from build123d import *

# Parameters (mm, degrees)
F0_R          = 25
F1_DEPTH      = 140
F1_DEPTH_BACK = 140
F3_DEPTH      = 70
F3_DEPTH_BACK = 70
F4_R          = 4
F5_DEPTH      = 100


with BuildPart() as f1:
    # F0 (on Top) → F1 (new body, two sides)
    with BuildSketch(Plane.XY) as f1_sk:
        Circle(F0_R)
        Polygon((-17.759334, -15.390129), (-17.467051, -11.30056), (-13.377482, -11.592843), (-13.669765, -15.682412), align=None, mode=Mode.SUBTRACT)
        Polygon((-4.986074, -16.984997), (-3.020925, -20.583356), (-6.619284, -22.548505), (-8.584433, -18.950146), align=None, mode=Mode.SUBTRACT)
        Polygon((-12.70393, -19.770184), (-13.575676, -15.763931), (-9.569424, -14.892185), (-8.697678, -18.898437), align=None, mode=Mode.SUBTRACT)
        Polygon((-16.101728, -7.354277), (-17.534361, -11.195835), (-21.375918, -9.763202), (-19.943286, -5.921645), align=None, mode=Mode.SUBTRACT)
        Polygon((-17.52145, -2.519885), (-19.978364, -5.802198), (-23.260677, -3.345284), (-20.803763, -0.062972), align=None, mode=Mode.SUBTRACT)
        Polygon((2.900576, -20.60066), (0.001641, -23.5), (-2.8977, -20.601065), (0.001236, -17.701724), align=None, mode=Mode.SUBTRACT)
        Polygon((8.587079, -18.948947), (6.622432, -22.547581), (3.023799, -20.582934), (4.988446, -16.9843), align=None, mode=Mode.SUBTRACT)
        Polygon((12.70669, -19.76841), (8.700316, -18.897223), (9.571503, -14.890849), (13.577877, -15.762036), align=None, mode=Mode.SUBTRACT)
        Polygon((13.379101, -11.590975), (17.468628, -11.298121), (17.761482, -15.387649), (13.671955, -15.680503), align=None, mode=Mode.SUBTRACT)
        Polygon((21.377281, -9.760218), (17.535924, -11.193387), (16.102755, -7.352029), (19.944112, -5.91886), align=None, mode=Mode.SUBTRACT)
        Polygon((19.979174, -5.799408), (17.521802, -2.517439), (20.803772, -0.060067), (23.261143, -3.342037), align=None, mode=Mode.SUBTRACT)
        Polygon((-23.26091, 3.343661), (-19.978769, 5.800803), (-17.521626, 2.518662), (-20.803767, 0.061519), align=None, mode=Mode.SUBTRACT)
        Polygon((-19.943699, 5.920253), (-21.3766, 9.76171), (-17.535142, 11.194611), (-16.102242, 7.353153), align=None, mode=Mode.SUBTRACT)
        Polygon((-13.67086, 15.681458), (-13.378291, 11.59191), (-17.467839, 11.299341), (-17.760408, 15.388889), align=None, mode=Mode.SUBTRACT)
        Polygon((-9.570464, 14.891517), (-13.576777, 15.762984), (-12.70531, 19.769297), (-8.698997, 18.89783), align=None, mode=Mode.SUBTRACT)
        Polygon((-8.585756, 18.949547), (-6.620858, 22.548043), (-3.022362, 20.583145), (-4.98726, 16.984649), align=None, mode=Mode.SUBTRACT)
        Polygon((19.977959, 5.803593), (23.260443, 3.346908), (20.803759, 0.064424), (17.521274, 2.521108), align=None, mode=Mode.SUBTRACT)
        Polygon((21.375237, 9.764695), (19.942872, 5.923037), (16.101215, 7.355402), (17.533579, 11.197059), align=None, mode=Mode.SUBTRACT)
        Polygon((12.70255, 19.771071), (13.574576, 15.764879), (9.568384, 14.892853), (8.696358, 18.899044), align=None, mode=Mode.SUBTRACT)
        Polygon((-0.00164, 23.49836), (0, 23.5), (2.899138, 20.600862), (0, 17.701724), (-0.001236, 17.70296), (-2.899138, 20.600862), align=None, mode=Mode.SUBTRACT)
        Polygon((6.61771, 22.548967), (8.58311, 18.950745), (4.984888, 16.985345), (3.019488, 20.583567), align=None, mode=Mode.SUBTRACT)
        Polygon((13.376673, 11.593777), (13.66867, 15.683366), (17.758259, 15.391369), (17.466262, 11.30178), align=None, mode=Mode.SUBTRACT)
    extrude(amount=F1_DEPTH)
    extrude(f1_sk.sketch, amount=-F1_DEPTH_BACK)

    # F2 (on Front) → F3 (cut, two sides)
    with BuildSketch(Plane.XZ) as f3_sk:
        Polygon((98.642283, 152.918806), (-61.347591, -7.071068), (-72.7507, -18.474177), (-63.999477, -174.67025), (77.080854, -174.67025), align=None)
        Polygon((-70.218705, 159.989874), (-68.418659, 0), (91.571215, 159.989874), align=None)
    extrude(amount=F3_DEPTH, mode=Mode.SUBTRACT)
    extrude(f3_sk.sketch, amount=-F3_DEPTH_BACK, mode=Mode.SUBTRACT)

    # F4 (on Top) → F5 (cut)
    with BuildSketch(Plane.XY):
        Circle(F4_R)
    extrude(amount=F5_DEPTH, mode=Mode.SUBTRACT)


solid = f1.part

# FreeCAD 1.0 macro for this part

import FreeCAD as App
import Part
import Sketcher
Q = App.Units.Quantity

doc = App.newDocument("Part")
body = doc.addObject("PartDesign::Body", "Body")

# Sketch on XY plane
sketch1 = body.newObject("Sketcher::SketchObject", "Sketch")
sketch1.AttachmentSupport = (doc.getObject("XY_Plane"), [""])
sketch1.MapMode = "FlatFace"
sketch1.addGeometry(Part.Circle(App.Vector(0, 0, 0), App.Vector(0, 0, 1), 25), False)
sketch1.addGeometry(Part.LineSegment(App.Vector(-13.7, -15.7, 0), App.Vector(-17.8, -15.4, 0)), False)
sketch1.addGeometry(Part.LineSegment(App.Vector(-17.8, -15.4, 0), App.Vector(-17.5, -11.3, 0)), False)
sketch1.addGeometry(Part.LineSegment(App.Vector(-17.5, -11.3, 0), App.Vector(-13.4, -11.6, 0)), False)
sketch1.addGeometry(Part.LineSegment(App.Vector(-13.4, -11.6, 0), App.Vector(-13.7, -15.7, 0)), False)
sketch1.addGeometry(Part.LineSegment(App.Vector(-8.6, -19, 0), App.Vector(-5, -17, 0)), False)
sketch1.addGeometry(Part.LineSegment(App.Vector(-5, -17, 0), App.Vector(-3, -20.6, 0)), False)
sketch1.addGeometry(Part.LineSegment(App.Vector(-3, -20.6, 0), App.Vector(-6.6, -22.5, 0)), False)
sketch1.addGeometry(Part.LineSegment(App.Vector(-6.6, -22.5, 0), App.Vector(-8.6, -19, 0)), False)
sketch1.addGeometry(Part.LineSegment(App.Vector(-8.7, -18.9, 0), App.Vector(-12.7, -19.8, 0)), False)
sketch1.addGeometry(Part.LineSegment(App.Vector(-12.7, -19.8, 0), App.Vector(-13.6, -15.8, 0)), False)
sketch1.addGeometry(Part.LineSegment(App.Vector(-13.6, -15.8, 0), App.Vector(-9.6, -14.9, 0)), False)
sketch1.addGeometry(Part.LineSegment(App.Vector(-9.6, -14.9, 0), App.Vector(-8.7, -18.9, 0)), False)
sketch1.addGeometry(Part.LineSegment(App.Vector(-19.9, -5.9, 0), App.Vector(-16.1, -7.4, 0)), False)
sketch1.addGeometry(Part.LineSegment(App.Vector(-16.1, -7.4, 0), App.Vector(-17.5, -11.2, 0)), False)
sketch1.addGeometry(Part.LineSegment(App.Vector(-17.5, -11.2, 0), App.Vector(-21.4, -9.8, 0)), False)
sketch1.addGeometry(Part.LineSegment(App.Vector(-21.4, -9.8, 0), App.Vector(-19.9, -5.9, 0)), False)
sketch1.addGeometry(Part.LineSegment(App.Vector(-20.8, -0.1, 0), App.Vector(-17.5, -2.5, 0)), False)
sketch1.addGeometry(Part.LineSegment(App.Vector(-17.5, -2.5, 0), App.Vector(-20, -5.8, 0)), False)
sketch1.addGeometry(Part.LineSegment(App.Vector(-20, -5.8, 0), App.Vector(-23.3, -3.3, 0)), False)
sketch1.addGeometry(Part.LineSegment(App.Vector(-23.3, -3.3, 0), App.Vector(-20.8, -0.1, 0)), False)
sketch1.addGeometry(Part.LineSegment(App.Vector(0, -17.7, 0), App.Vector(2.9, -20.6, 0)), False)
sketch1.addGeometry(Part.LineSegment(App.Vector(2.9, -20.6, 0), App.Vector(0, -23.5, 0)), False)
sketch1.addGeometry(Part.LineSegment(App.Vector(0, -23.5, 0), App.Vector(-2.9, -20.6, 0)), False)
sketch1.addGeometry(Part.LineSegment(App.Vector(-2.9, -20.6, 0), App.Vector(0, -17.7, 0)), False)
sketch1.addGeometry(Part.LineSegment(App.Vector(5, -17, 0), App.Vector(8.6, -18.9, 0)), False)
sketch1.addGeometry(Part.LineSegment(App.Vector(8.6, -18.9, 0), App.Vector(6.6, -22.5, 0)), False)
sketch1.addGeometry(Part.LineSegment(App.Vector(6.6, -22.5, 0), App.Vector(3, -20.6, 0)), False)
sketch1.addGeometry(Part.LineSegment(App.Vector(3, -20.6, 0), App.Vector(5, -17, 0)), False)
sketch1.addGeometry(Part.LineSegment(App.Vector(13.6, -15.8, 0), App.Vector(12.7, -19.8, 0)), False)
sketch1.addGeometry(Part.LineSegment(App.Vector(12.7, -19.8, 0), App.Vector(8.7, -18.9, 0)), False)
sketch1.addGeometry(Part.LineSegment(App.Vector(8.7, -18.9, 0), App.Vector(9.6, -14.9, 0)), False)
sketch1.addGeometry(Part.LineSegment(App.Vector(9.6, -14.9, 0), App.Vector(13.6, -15.8, 0)), False)
sketch1.addGeometry(Part.LineSegment(App.Vector(13.7, -15.7, 0), App.Vector(13.4, -11.6, 0)), False)
sketch1.addGeometry(Part.LineSegment(App.Vector(13.4, -11.6, 0), App.Vector(17.5, -11.3, 0)), False)
sketch1.addGeometry(Part.LineSegment(App.Vector(17.5, -11.3, 0), App.Vector(17.8, -15.4, 0)), False)
sketch1.addGeometry(Part.LineSegment(App.Vector(17.8, -15.4, 0), App.Vector(13.7, -15.7, 0)), False)
sketch1.addGeometry(Part.LineSegment(App.Vector(19.9, -5.9, 0), App.Vector(21.4, -9.8, 0)), False)
sketch1.addGeometry(Part.LineSegment(App.Vector(21.4, -9.8, 0), App.Vector(17.5, -11.2, 0)), False)
sketch1.addGeometry(Part.LineSegment(App.Vector(17.5, -11.2, 0), App.Vector(16.1, -7.4, 0)), False)
sketch1.addGeometry(Part.LineSegment(App.Vector(16.1, -7.4, 0), App.Vector(19.9, -5.9, 0)), False)
sketch1.addGeometry(Part.LineSegment(App.Vector(23.3, -3.3, 0), App.Vector(20, -5.8, 0)), False)
sketch1.addGeometry(Part.LineSegment(App.Vector(20, -5.8, 0), App.Vector(17.5, -2.5, 0)), False)
sketch1.addGeometry(Part.LineSegment(App.Vector(17.5, -2.5, 0), App.Vector(20.8, -0.1, 0)), False)
sketch1.addGeometry(Part.LineSegment(App.Vector(20.8, -0.1, 0), App.Vector(23.3, -3.3, 0)), False)
sketch1.addGeometry(Part.LineSegment(App.Vector(-20.8, 0.1, 0), App.Vector(-23.3, 3.3, 0)), False)
sketch1.addGeometry(Part.LineSegment(App.Vector(-23.3, 3.3, 0), App.Vector(-20, 5.8, 0)), False)
sketch1.addGeometry(Part.LineSegment(App.Vector(-20, 5.8, 0), App.Vector(-17.5, 2.5, 0)), False)
sketch1.addGeometry(Part.LineSegment(App.Vector(-17.5, 2.5, 0), App.Vector(-20.8, 0.1, 0)), False)
sketch1.addGeometry(Part.LineSegment(App.Vector(-16.1, 7.4, 0), App.Vector(-19.9, 5.9, 0)), False)
sketch1.addGeometry(Part.LineSegment(App.Vector(-19.9, 5.9, 0), App.Vector(-21.4, 9.8, 0)), False)
sketch1.addGeometry(Part.LineSegment(App.Vector(-21.4, 9.8, 0), App.Vector(-17.5, 11.2, 0)), False)
sketch1.addGeometry(Part.LineSegment(App.Vector(-17.5, 11.2, 0), App.Vector(-16.1, 7.4, 0)), False)
sketch1.addGeometry(Part.LineSegment(App.Vector(-17.8, 15.4, 0), App.Vector(-13.7, 15.7, 0)), False)
sketch1.addGeometry(Part.LineSegment(App.Vector(-13.7, 15.7, 0), App.Vector(-13.4, 11.6, 0)), False)
sketch1.addGeometry(Part.LineSegment(App.Vector(-13.4, 11.6, 0), App.Vector(-17.5, 11.3, 0)), False)
sketch1.addGeometry(Part.LineSegment(App.Vector(-17.5, 11.3, 0), App.Vector(-17.8, 15.4, 0)), False)
sketch1.addGeometry(Part.LineSegment(App.Vector(-8.7, 18.9, 0), App.Vector(-9.6, 14.9, 0)), False)
sketch1.addGeometry(Part.LineSegment(App.Vector(-9.6, 14.9, 0), App.Vector(-13.6, 15.8, 0)), False)
sketch1.addGeometry(Part.LineSegment(App.Vector(-13.6, 15.8, 0), App.Vector(-12.7, 19.8, 0)), False)
sketch1.addGeometry(Part.LineSegment(App.Vector(-12.7, 19.8, 0), App.Vector(-8.7, 18.9, 0)), False)
sketch1.addGeometry(Part.LineSegment(App.Vector(-5, 17, 0), App.Vector(-8.6, 18.9, 0)), False)
sketch1.addGeometry(Part.LineSegment(App.Vector(-8.6, 18.9, 0), App.Vector(-6.6, 22.5, 0)), False)
sketch1.addGeometry(Part.LineSegment(App.Vector(-6.6, 22.5, 0), App.Vector(-3, 20.6, 0)), False)
sketch1.addGeometry(Part.LineSegment(App.Vector(-3, 20.6, 0), App.Vector(-5, 17, 0)), False)
sketch1.addGeometry(Part.LineSegment(App.Vector(-2.9, 20.6, 0), App.Vector(0, 23.5, 0)), False)
sketch1.addGeometry(Part.LineSegment(App.Vector(0, 23.5, 0), App.Vector(2.9, 20.6, 0)), False)
sketch1.addGeometry(Part.LineSegment(App.Vector(2.9, 20.6, 0), App.Vector(0, 17.7, 0)), False)
sketch1.addGeometry(Part.LineSegment(App.Vector(0, 17.7, 0), App.Vector(-2.9, 20.6, 0)), False)
sketch1.addGeometry(Part.LineSegment(App.Vector(17.5, 2.5, 0), App.Vector(20, 5.8, 0)), False)
sketch1.addGeometry(Part.LineSegment(App.Vector(20, 5.8, 0), App.Vector(23.3, 3.3, 0)), False)
sketch1.addGeometry(Part.LineSegment(App.Vector(23.3, 3.3, 0), App.Vector(20.8, 0.1, 0)), False)
sketch1.addGeometry(Part.LineSegment(App.Vector(20.8, 0.1, 0), App.Vector(17.5, 2.5, 0)), False)
sketch1.addGeometry(Part.LineSegment(App.Vector(17.5, 11.2, 0), App.Vector(21.4, 9.8, 0)), False)
sketch1.addGeometry(Part.LineSegment(App.Vector(21.4, 9.8, 0), App.Vector(19.9, 5.9, 0)), False)
sketch1.addGeometry(Part.LineSegment(App.Vector(19.9, 5.9, 0), App.Vector(16.1, 7.4, 0)), False)
sketch1.addGeometry(Part.LineSegment(App.Vector(16.1, 7.4, 0), App.Vector(17.5, 11.2, 0)), False)
sketch1.addGeometry(Part.LineSegment(App.Vector(8.7, 18.9, 0), App.Vector(12.7, 19.8, 0)), False)
sketch1.addGeometry(Part.LineSegment(App.Vector(12.7, 19.8, 0), App.Vector(13.6, 15.8, 0)), False)
sketch1.addGeometry(Part.LineSegment(App.Vector(13.6, 15.8, 0), App.Vector(9.6, 14.9, 0)), False)
sketch1.addGeometry(Part.LineSegment(App.Vector(9.6, 14.9, 0), App.Vector(8.7, 18.9, 0)), False)
sketch1.addGeometry(Part.LineSegment(App.Vector(3, 20.6, 0), App.Vector(6.6, 22.5, 0)), False)
sketch1.addGeometry(Part.LineSegment(App.Vector(6.6, 22.5, 0), App.Vector(8.6, 19, 0)), False)
sketch1.addGeometry(Part.LineSegment(App.Vector(8.6, 19, 0), App.Vector(5, 17, 0)), False)
sketch1.addGeometry(Part.LineSegment(App.Vector(5, 17, 0), App.Vector(3, 20.6, 0)), False)
sketch1.addGeometry(Part.LineSegment(App.Vector(17.5, 11.3, 0), App.Vector(13.4, 11.6, 0)), False)
sketch1.addGeometry(Part.LineSegment(App.Vector(13.4, 11.6, 0), App.Vector(13.7, 15.7, 0)), False)
sketch1.addGeometry(Part.LineSegment(App.Vector(13.7, 15.7, 0), App.Vector(17.8, 15.4, 0)), False)
sketch1.addGeometry(Part.LineSegment(App.Vector(17.8, 15.4, 0), App.Vector(17.5, 11.3, 0)), False)
sketch1.addConstraint(Sketcher.Constraint("Coincident", 1, 2, 2, 1))
sketch1.addConstraint(Sketcher.Constraint("Coincident", 2, 2, 3, 1))
sketch1.addConstraint(Sketcher.Constraint("Coincident", 3, 2, 4, 1))
sketch1.addConstraint(Sketcher.Constraint("Coincident", 4, 2, 1, 1))
sketch1.addConstraint(Sketcher.Constraint("Coincident", 5, 2, 6, 1))
sketch1.addConstraint(Sketcher.Constraint("Coincident", 6, 2, 7, 1))
sketch1.addConstraint(Sketcher.Constraint("Coincident", 7, 2, 8, 1))
sketch1.addConstraint(Sketcher.Constraint("Coincident", 8, 2, 5, 1))
sketch1.addConstraint(Sketcher.Constraint("Coincident", 9, 2, 10, 1))
sketch1.addConstraint(Sketcher.Constraint("Coincident", 10, 2, 11, 1))
sketch1.addConstraint(Sketcher.Constraint("Coincident", 11, 2, 12, 1))
sketch1.addConstraint(Sketcher.Constraint("Coincident", 12, 2, 9, 1))
sketch1.addConstraint(Sketcher.Constraint("Coincident", 13, 2, 14, 1))
sketch1.addConstraint(Sketcher.Constraint("Coincident", 14, 2, 15, 1))
sketch1.addConstraint(Sketcher.Constraint("Coincident", 15, 2, 16, 1))
sketch1.addConstraint(Sketcher.Constraint("Coincident", 16, 2, 13, 1))
sketch1.addConstraint(Sketcher.Constraint("Coincident", 17, 2, 18, 1))
sketch1.addConstraint(Sketcher.Constraint("Coincident", 18, 2, 19, 1))
sketch1.addConstraint(Sketcher.Constraint("Coincident", 19, 2, 20, 1))
sketch1.addConstraint(Sketcher.Constraint("Coincident", 20, 2, 17, 1))
sketch1.addConstraint(Sketcher.Constraint("Coincident", 21, 2, 22, 1))
sketch1.addConstraint(Sketcher.Constraint("Coincident", 22, 2, 23, 1))
sketch1.addConstraint(Sketcher.Constraint("Coincident", 23, 2, 24, 1))
sketch1.addConstraint(Sketcher.Constraint("Coincident", 24, 2, 21, 1))
sketch1.addConstraint(Sketcher.Constraint("Coincident", 25, 2, 26, 1))
sketch1.addConstraint(Sketcher.Constraint("Coincident", 26, 2, 27, 1))
sketch1.addConstraint(Sketcher.Constraint("Coincident", 27, 2, 28, 1))
sketch1.addConstraint(Sketcher.Constraint("Coincident", 28, 2, 25, 1))
sketch1.addConstraint(Sketcher.Constraint("Coincident", 29, 2, 30, 1))
sketch1.addConstraint(Sketcher.Constraint("Coincident", 30, 2, 31, 1))
sketch1.addConstraint(Sketcher.Constraint("Coincident", 31, 2, 32, 1))
sketch1.addConstraint(Sketcher.Constraint("Coincident", 32, 2, 29, 1))
sketch1.addConstraint(Sketcher.Constraint("Coincident", 33, 2, 34, 1))
sketch1.addConstraint(Sketcher.Constraint("Coincident", 34, 2, 35, 1))
sketch1.addConstraint(Sketcher.Constraint("Coincident", 35, 2, 36, 1))
sketch1.addConstraint(Sketcher.Constraint("Coincident", 36, 2, 33, 1))
sketch1.addConstraint(Sketcher.Constraint("Coincident", 37, 2, 38, 1))
sketch1.addConstraint(Sketcher.Constraint("Coincident", 38, 2, 39, 1))
sketch1.addConstraint(Sketcher.Constraint("Coincident", 39, 2, 40, 1))
sketch1.addConstraint(Sketcher.Constraint("Coincident", 40, 2, 37, 1))
sketch1.addConstraint(Sketcher.Constraint("Coincident", 41, 2, 42, 1))
sketch1.addConstraint(Sketcher.Constraint("Coincident", 42, 2, 43, 1))
sketch1.addConstraint(Sketcher.Constraint("Coincident", 43, 2, 44, 1))
sketch1.addConstraint(Sketcher.Constraint("Coincident", 44, 2, 41, 1))
sketch1.addConstraint(Sketcher.Constraint("Coincident", 45, 2, 46, 1))
sketch1.addConstraint(Sketcher.Constraint("Coincident", 46, 2, 47, 1))
sketch1.addConstraint(Sketcher.Constraint("Coincident", 47, 2, 48, 1))
sketch1.addConstraint(Sketcher.Constraint("Coincident", 48, 2, 45, 1))
sketch1.addConstraint(Sketcher.Constraint("Coincident", 49, 2, 50, 1))
sketch1.addConstraint(Sketcher.Constraint("Coincident", 50, 2, 51, 1))
sketch1.addConstraint(Sketcher.Constraint("Coincident", 51, 2, 52, 1))
sketch1.addConstraint(Sketcher.Constraint("Coincident", 52, 2, 49, 1))
sketch1.addConstraint(Sketcher.Constraint("Coincident", 53, 2, 54, 1))
sketch1.addConstraint(Sketcher.Constraint("Coincident", 54, 2, 55, 1))
sketch1.addConstraint(Sketcher.Constraint("Coincident", 55, 2, 56, 1))
sketch1.addConstraint(Sketcher.Constraint("Coincident", 56, 2, 53, 1))
sketch1.addConstraint(Sketcher.Constraint("Coincident", 57, 2, 58, 1))
sketch1.addConstraint(Sketcher.Constraint("Coincident", 58, 2, 59, 1))
sketch1.addConstraint(Sketcher.Constraint("Coincident", 59, 2, 60, 1))
sketch1.addConstraint(Sketcher.Constraint("Coincident", 60, 2, 57, 1))
sketch1.addConstraint(Sketcher.Constraint("Coincident", 61, 2, 62, 1))
sketch1.addConstraint(Sketcher.Constraint("Coincident", 62, 2, 63, 1))
sketch1.addConstraint(Sketcher.Constraint("Coincident", 63, 2, 64, 1))
sketch1.addConstraint(Sketcher.Constraint("Coincident", 64, 2, 61, 1))
sketch1.addConstraint(Sketcher.Constraint("Coincident", 65, 2, 66, 1))
sketch1.addConstraint(Sketcher.Constraint("Coincident", 66, 2, 67, 1))
sketch1.addConstraint(Sketcher.Constraint("Coincident", 67, 2, 68, 1))
sketch1.addConstraint(Sketcher.Constraint("Coincident", 68, 2, 65, 1))
sketch1.addConstraint(Sketcher.Constraint("Coincident", 69, 2, 70, 1))
sketch1.addConstraint(Sketcher.Constraint("Coincident", 70, 2, 71, 1))
sketch1.addConstraint(Sketcher.Constraint("Coincident", 71, 2, 72, 1))
sketch1.addConstraint(Sketcher.Constraint("Coincident", 72, 2, 69, 1))
sketch1.addConstraint(Sketcher.Constraint("Coincident", 73, 2, 74, 1))
sketch1.addConstraint(Sketcher.Constraint("Coincident", 74, 2, 75, 1))
sketch1.addConstraint(Sketcher.Constraint("Coincident", 75, 2, 76, 1))
sketch1.addConstraint(Sketcher.Constraint("Coincident", 76, 2, 73, 1))
sketch1.addConstraint(Sketcher.Constraint("Coincident", 77, 2, 78, 1))
sketch1.addConstraint(Sketcher.Constraint("Coincident", 78, 2, 79, 1))
sketch1.addConstraint(Sketcher.Constraint("Coincident", 79, 2, 80, 1))
sketch1.addConstraint(Sketcher.Constraint("Coincident", 80, 2, 77, 1))
sketch1.addConstraint(Sketcher.Constraint("Coincident", 81, 2, 82, 1))
sketch1.addConstraint(Sketcher.Constraint("Coincident", 82, 2, 83, 1))
sketch1.addConstraint(Sketcher.Constraint("Coincident", 83, 2, 84, 1))
sketch1.addConstraint(Sketcher.Constraint("Coincident", 84, 2, 81, 1))
sketch1.addConstraint(Sketcher.Constraint("Coincident", 85, 2, 86, 1))
sketch1.addConstraint(Sketcher.Constraint("Coincident", 86, 2, 87, 1))
sketch1.addConstraint(Sketcher.Constraint("Coincident", 87, 2, 88, 1))
sketch1.addConstraint(Sketcher.Constraint("Coincident", 88, 2, 85, 1))
sketch1.addConstraint(Sketcher.Constraint("Coincident", 0, 3, -1, 1))
sketch1.addConstraint(Sketcher.Constraint("Symmetric", 66, 2, 68, 2, -2))
sketch1.addConstraint(Sketcher.Constraint("PointOnObject", 65, 2, -2))
sketch1.addConstraint(Sketcher.Constraint("PointOnObject", 67, 2, -2))
sketch1.addConstraint(Sketcher.Constraint("Perpendicular", 1, 2))
sketch1.addConstraint(Sketcher.Constraint("Perpendicular", 2, 3))
sketch1.addConstraint(Sketcher.Constraint("Perpendicular", 3, 4))
sketch1.addConstraint(Sketcher.Constraint("Perpendicular", 5, 6))
sketch1.addConstraint(Sketcher.Constraint("Perpendicular", 6, 7))
sketch1.addConstraint(Sketcher.Constraint("Perpendicular", 7, 8))
sketch1.addConstraint(Sketcher.Constraint("Perpendicular", 9, 10))
sketch1.addConstraint(Sketcher.Constraint("Perpendicular", 10, 11))
sketch1.addConstraint(Sketcher.Constraint("Perpendicular", 11, 12))
sketch1.addConstraint(Sketcher.Constraint("Perpendicular", 13, 14))
sketch1.addConstraint(Sketcher.Constraint("Perpendicular", 14, 15))
sketch1.addConstraint(Sketcher.Constraint("Perpendicular", 15, 16))
sketch1.addConstraint(Sketcher.Constraint("Perpendicular", 17, 18))
sketch1.addConstraint(Sketcher.Constraint("Perpendicular", 18, 19))
sketch1.addConstraint(Sketcher.Constraint("Perpendicular", 19, 20))
sketch1.addConstraint(Sketcher.Constraint("Perpendicular", 21, 22))
sketch1.addConstraint(Sketcher.Constraint("Perpendicular", 22, 23))
sketch1.addConstraint(Sketcher.Constraint("Perpendicular", 23, 24))
sketch1.addConstraint(Sketcher.Constraint("Perpendicular", 25, 26))
sketch1.addConstraint(Sketcher.Constraint("Perpendicular", 26, 27))
sketch1.addConstraint(Sketcher.Constraint("Perpendicular", 27, 28))
sketch1.addConstraint(Sketcher.Constraint("Perpendicular", 29, 30))
sketch1.addConstraint(Sketcher.Constraint("Perpendicular", 30, 31))
sketch1.addConstraint(Sketcher.Constraint("Perpendicular", 31, 32))
sketch1.addConstraint(Sketcher.Constraint("Perpendicular", 33, 34))
sketch1.addConstraint(Sketcher.Constraint("Perpendicular", 34, 35))
sketch1.addConstraint(Sketcher.Constraint("Perpendicular", 35, 36))
sketch1.addConstraint(Sketcher.Constraint("Perpendicular", 37, 38))
sketch1.addConstraint(Sketcher.Constraint("Perpendicular", 38, 39))
sketch1.addConstraint(Sketcher.Constraint("Perpendicular", 39, 40))
sketch1.addConstraint(Sketcher.Constraint("Perpendicular", 41, 42))
sketch1.addConstraint(Sketcher.Constraint("Perpendicular", 42, 43))
sketch1.addConstraint(Sketcher.Constraint("Perpendicular", 43, 44))
sketch1.addConstraint(Sketcher.Constraint("Perpendicular", 45, 46))
sketch1.addConstraint(Sketcher.Constraint("Perpendicular", 46, 47))
sketch1.addConstraint(Sketcher.Constraint("Perpendicular", 47, 48))
sketch1.addConstraint(Sketcher.Constraint("Perpendicular", 49, 50))
sketch1.addConstraint(Sketcher.Constraint("Perpendicular", 50, 51))
sketch1.addConstraint(Sketcher.Constraint("Perpendicular", 51, 52))
sketch1.addConstraint(Sketcher.Constraint("Perpendicular", 53, 54))
sketch1.addConstraint(Sketcher.Constraint("Perpendicular", 54, 55))
sketch1.addConstraint(Sketcher.Constraint("Perpendicular", 55, 56))
sketch1.addConstraint(Sketcher.Constraint("Perpendicular", 57, 58))
sketch1.addConstraint(Sketcher.Constraint("Perpendicular", 58, 59))
sketch1.addConstraint(Sketcher.Constraint("Perpendicular", 59, 60))
sketch1.addConstraint(Sketcher.Constraint("Perpendicular", 61, 62))
sketch1.addConstraint(Sketcher.Constraint("Perpendicular", 62, 63))
sketch1.addConstraint(Sketcher.Constraint("Perpendicular", 63, 64))
sketch1.addConstraint(Sketcher.Constraint("Perpendicular", 65, 66))
sketch1.addConstraint(Sketcher.Constraint("Perpendicular", 66, 67))
sketch1.addConstraint(Sketcher.Constraint("Perpendicular", 69, 70))
sketch1.addConstraint(Sketcher.Constraint("Perpendicular", 70, 71))
sketch1.addConstraint(Sketcher.Constraint("Perpendicular", 71, 72))
sketch1.addConstraint(Sketcher.Constraint("Perpendicular", 73, 74))
sketch1.addConstraint(Sketcher.Constraint("Perpendicular", 74, 75))
sketch1.addConstraint(Sketcher.Constraint("Perpendicular", 75, 76))
sketch1.addConstraint(Sketcher.Constraint("Perpendicular", 77, 78))
sketch1.addConstraint(Sketcher.Constraint("Perpendicular", 78, 79))
sketch1.addConstraint(Sketcher.Constraint("Perpendicular", 79, 80))
sketch1.addConstraint(Sketcher.Constraint("Perpendicular", 81, 82))
sketch1.addConstraint(Sketcher.Constraint("Perpendicular", 82, 83))
sketch1.addConstraint(Sketcher.Constraint("Perpendicular", 83, 84))
sketch1.addConstraint(Sketcher.Constraint("Perpendicular", 85, 86))
sketch1.addConstraint(Sketcher.Constraint("Perpendicular", 86, 87))
sketch1.addConstraint(Sketcher.Constraint("Perpendicular", 87, 88))
sketch1.addConstraint(Sketcher.Constraint("Equal", 1, 2))
sketch1.addConstraint(Sketcher.Constraint("Equal", 4, 5))
sketch1.addConstraint(Sketcher.Constraint("Equal", 5, 6))
sketch1.addConstraint(Sketcher.Constraint("Equal", 8, 9))
sketch1.addConstraint(Sketcher.Constraint("Equal", 9, 10))
sketch1.addConstraint(Sketcher.Constraint("Equal", 12, 13))
sketch1.addConstraint(Sketcher.Constraint("Equal", 13, 14))
sketch1.addConstraint(Sketcher.Constraint("Equal", 16, 17))
sketch1.addConstraint(Sketcher.Constraint("Equal", 17, 18))
sketch1.addConstraint(Sketcher.Constraint("Equal", 20, 21))
sketch1.addConstraint(Sketcher.Constraint("Equal", 21, 22))
sketch1.addConstraint(Sketcher.Constraint("Equal", 24, 25))
sketch1.addConstraint(Sketcher.Constraint("Equal", 25, 26))
sketch1.addConstraint(Sketcher.Constraint("Equal", 28, 29))
sketch1.addConstraint(Sketcher.Constraint("Equal", 29, 30))
sketch1.addConstraint(Sketcher.Constraint("Equal", 32, 33))
sketch1.addConstraint(Sketcher.Constraint("Equal", 33, 34))
sketch1.addConstraint(Sketcher.Constraint("Equal", 36, 37))
sketch1.addConstraint(Sketcher.Constraint("Equal", 37, 38))
sketch1.addConstraint(Sketcher.Constraint("Equal", 40, 41))
sketch1.addConstraint(Sketcher.Constraint("Equal", 41, 42))
sketch1.addConstraint(Sketcher.Constraint("Equal", 44, 45))
sketch1.addConstraint(Sketcher.Constraint("Equal", 45, 46))
sketch1.addConstraint(Sketcher.Constraint("Equal", 48, 49))
sketch1.addConstraint(Sketcher.Constraint("Equal", 49, 50))
sketch1.addConstraint(Sketcher.Constraint("Equal", 52, 53))
sketch1.addConstraint(Sketcher.Constraint("Equal", 53, 54))
sketch1.addConstraint(Sketcher.Constraint("Equal", 56, 57))
sketch1.addConstraint(Sketcher.Constraint("Equal", 57, 58))
sketch1.addConstraint(Sketcher.Constraint("Equal", 60, 61))
sketch1.addConstraint(Sketcher.Constraint("Equal", 61, 62))
sketch1.addConstraint(Sketcher.Constraint("Equal", 64, 65))
sketch1.addConstraint(Sketcher.Constraint("Equal", 68, 69))
sketch1.addConstraint(Sketcher.Constraint("Equal", 69, 70))
sketch1.addConstraint(Sketcher.Constraint("Equal", 72, 73))
sketch1.addConstraint(Sketcher.Constraint("Equal", 73, 74))
sketch1.addConstraint(Sketcher.Constraint("Equal", 76, 77))
sketch1.addConstraint(Sketcher.Constraint("Equal", 77, 78))
sketch1.addConstraint(Sketcher.Constraint("Equal", 80, 81))
sketch1.addConstraint(Sketcher.Constraint("Equal", 81, 82))
sketch1.addConstraint(Sketcher.Constraint("Equal", 84, 85))
sketch1.addConstraint(Sketcher.Constraint("Equal", 85, 86))
sketch1.addConstraint(Sketcher.Constraint("Diameter", 0, Q("50 mm")))
sketch1.addConstraint(Sketcher.Constraint("Distance", 1, Q("4.1 mm")))
sketch1.addConstraint(Sketcher.Constraint("DistanceY", 22, 2, -1, 1, Q("23.5 mm")))
sketch1.addConstraint(Sketcher.Constraint("DistanceY", -1, 1, 65, 2, Q("23.5 mm")))
sketch1.addConstraint(Sketcher.Constraint("Angle", 5, Q("28.639998 deg")))
sketch1.addConstraint(Sketcher.Constraint("Angle", 37, Q("-69.540001 deg")))
sketch1.addConstraint(Sketcher.Constraint("Angle", 45, Q("126.819997 deg")))
sketch1.addConstraint(Sketcher.Constraint("Angle", 77, Q("12.280009 deg")))
sketch1.addConstraint(Sketcher.Constraint("DistanceX", 23, 2, -1, 1, Q("2.8977 mm")))
sketch1.addConstraint(Sketcher.Constraint("DistanceX", -1, 1, 27, 2, Q("3.023799 mm")))
sketch1.addConstraint(Sketcher.Constraint("DistanceY", 28, 2, -1, 1, Q("16.9843 mm")))
sketch1.addConstraint(Sketcher.Constraint("DistanceX", -1, 1, 33, 2, Q("13.379101 mm")))
sketch1.addConstraint(Sketcher.Constraint("DistanceX", 49, 2, -1, 1, Q("19.943699 mm")))
sketch1.addConstraint(Sketcher.Constraint("DistanceX", 50, 2, -1, 1, Q("21.3766 mm")))
sketch1.addConstraint(Sketcher.Constraint("DistanceY", -1, 1, 75, 2, Q("7.355402 mm")))
sketch1.addConstraint(Sketcher.Constraint("DistanceY", 1, 2, -1, 1, Q("15.390129 mm")))
sketch1.addConstraint(Sketcher.Constraint("DistanceX", 2, 2, -1, 1, Q("17.467051 mm")))
sketch1.addConstraint(Sketcher.Constraint("DistanceY", 2, 2, -1, 1, Q("11.30056 mm")))
sketch1.addConstraint(Sketcher.Constraint("DistanceX", 9, 2, -1, 1, Q("12.70393 mm")))
sketch1.addConstraint(Sketcher.Constraint("DistanceY", 10, 2, -1, 1, Q("15.763931 mm")))
sketch1.addConstraint(Sketcher.Constraint("DistanceX", 13, 2, -1, 1, Q("16.101728 mm")))
sketch1.addConstraint(Sketcher.Constraint("DistanceX", 14, 2, -1, 1, Q("17.534361 mm")))
sketch1.addConstraint(Sketcher.Constraint("DistanceX", 17, 2, -1, 1, Q("17.52145 mm")))
sketch1.addConstraint(Sketcher.Constraint("DistanceY", 21, 2, -1, 1, Q("20.60066 mm")))
sketch1.addConstraint(Sketcher.Constraint("DistanceX", -1, 1, 25, 2, Q("8.587079 mm")))
sketch1.addConstraint(Sketcher.Constraint("DistanceX", -1, 1, 29, 2, Q("12.70669 mm")))
sketch1.addConstraint(Sketcher.Constraint("DistanceY", 29, 2, -1, 1, Q("19.76841 mm")))
sketch1.addConstraint(Sketcher.Constraint("DistanceY", 31, 2, -1, 1, Q("14.890849 mm")))
sketch1.addConstraint(Sketcher.Constraint("DistanceY", 34, 2, -1, 1, Q("11.298121 mm")))
sketch1.addConstraint(Sketcher.Constraint("DistanceY", 35, 2, -1, 1, Q("15.387649 mm")))
sketch1.addConstraint(Sketcher.Constraint("DistanceX", -1, 1, 37, 2, Q("21.377281 mm")))
sketch1.addConstraint(Sketcher.Constraint("DistanceY", 39, 2, -1, 1, Q("7.352029 mm")))
sketch1.addConstraint(Sketcher.Constraint("DistanceY", 42, 2, -1, 1, Q("2.517439 mm")))
sketch1.addConstraint(Sketcher.Constraint("DistanceX", -1, 1, 43, 2, Q("20.803772 mm")))
sketch1.addConstraint(Sketcher.Constraint("DistanceX", 45, 2, -1, 1, Q("23.26091 mm")))
sketch1.addConstraint(Sketcher.Constraint("DistanceY", -1, 1, 45, 2, Q("3.343661 mm")))
sketch1.addConstraint(Sketcher.Constraint("DistanceY", -1, 1, 50, 2, Q("9.76171 mm")))
sketch1.addConstraint(Sketcher.Constraint("DistanceX", 53, 2, -1, 1, Q("13.67086 mm")))
sketch1.addConstraint(Sketcher.Constraint("DistanceX", 54, 2, -1, 1, Q("13.378291 mm")))
sketch1.addConstraint(Sketcher.Constraint("DistanceY", -1, 1, 54, 2, Q("11.59191 mm")))
sketch1.addConstraint(Sketcher.Constraint("DistanceX", 59, 2, -1, 1, Q("12.70531 mm")))
sketch1.addConstraint(Sketcher.Constraint("DistanceY", -1, 1, 60, 2, Q("18.89783 mm")))
sketch1.addConstraint(Sketcher.Constraint("DistanceX", 64, 2, -1, 1, Q("4.98726 mm")))
sketch1.addConstraint(Sketcher.Constraint("DistanceY", -1, 1, 64, 2, Q("16.984649 mm")))
sketch1.addConstraint(Sketcher.Constraint("DistanceX", -1, 1, 69, 2, Q("19.977959 mm")))
sketch1.addConstraint(Sketcher.Constraint("DistanceY", -1, 1, 70, 2, Q("3.346908 mm")))
sketch1.addConstraint(Sketcher.Constraint("DistanceX", -1, 1, 71, 2, Q("20.803759 mm")))
sketch1.addConstraint(Sketcher.Constraint("DistanceX", -1, 1, 76, 2, Q("17.533579 mm")))
sketch1.addConstraint(Sketcher.Constraint("DistanceY", -1, 1, 76, 2, Q("11.197059 mm")))
sketch1.addConstraint(Sketcher.Constraint("DistanceX", -1, 1, 77, 2, Q("12.70255 mm")))
sketch1.addConstraint(Sketcher.Constraint("DistanceY", -1, 1, 77, 2, Q("19.771071 mm")))
sketch1.addConstraint(Sketcher.Constraint("DistanceX", -1, 1, 81, 2, Q("6.61771 mm")))
sketch1.addConstraint(Sketcher.Constraint("DistanceX", -1, 1, 82, 2, Q("8.58311 mm")))
sketch1.addConstraint(Sketcher.Constraint("DistanceX", -1, 1, 86, 2, Q("13.66867 mm")))
sketch1.addConstraint(Sketcher.Constraint("DistanceX", -1, 1, 87, 2, Q("17.758259 mm")))
sketch1.addConstraint(Sketcher.Constraint("DistanceY", -1, 1, 87, 2, Q("15.391369 mm")))
sketch1.addConstraint(Sketcher.Constraint("DistanceX", 5, 2, -1, 1, Q("4.986074 mm")))
sketch1.addConstraint(Sketcher.Constraint("DistanceY", 5, 2, -1, 1, Q("16.984997 mm")))
sketch1.addConstraint(Sketcher.Constraint("DistanceY", 9, 2, -1, 1, Q("19.770184 mm")))
sketch1.addConstraint(Sketcher.Constraint("DistanceY", 13, 2, -1, 1, Q("7.354277 mm")))
sketch1.addConstraint(Sketcher.Constraint("DistanceY", 17, 2, -1, 1, Q("2.519885 mm")))
sketch1.addConstraint(Sketcher.Constraint("DistanceX", 18, 2, -1, 1, Q("19.978364 mm")))
sketch1.addConstraint(Sketcher.Constraint("DistanceX", -1, 1, 41, 2, Q("19.979174 mm")))
sketch1.addConstraint(Sketcher.Constraint("DistanceX", 57, 2, -1, 1, Q("9.570464 mm")))
sketch1.addConstraint(Sketcher.Constraint("DistanceX", 61, 2, -1, 1, Q("8.585756 mm")))
sketch1.addConstraint(Sketcher.Constraint("DistanceY", -1, 1, 81, 2, Q("22.548967 mm")))
pad1 = body.newObject("PartDesign::Pad", "Pad")
pad1.Profile = sketch1
pad1.Type = "TwoLengths"
pad1.Length = 140
pad1.Length2 = 140

# Sketch on XZ plane
sketch2 = body.newObject("Sketcher::SketchObject", "Sketch001")
sketch2.AttachmentSupport = (doc.getObject("XZ_Plane"), [""])
sketch2.MapMode = "FlatFace"
sketch2.addGeometry(Part.LineSegment(App.Vector(99, 153, 0), App.Vector(-73, -18, 0)), False)
sketch2.addGeometry(Part.LineSegment(App.Vector(-73, -18, 0), App.Vector(-64, -175, 0)), False)
sketch2.addGeometry(Part.LineSegment(App.Vector(-64, -175, 0), App.Vector(77, -175, 0)), False)
sketch2.addGeometry(Part.LineSegment(App.Vector(77, -175, 0), App.Vector(99, 153, 0)), False)
sketch2.addGeometry(Part.LineSegment(App.Vector(-70, 160, 0), App.Vector(-68, 0, 0)), False)
sketch2.addGeometry(Part.LineSegment(App.Vector(-68, 0, 0), App.Vector(92, 160, 0)), False)
sketch2.addGeometry(Part.LineSegment(App.Vector(92, 160, 0), App.Vector(-70, 160, 0)), False)
sketch2.addConstraint(Sketcher.Constraint("Coincident", 0, 2, 1, 1))
sketch2.addConstraint(Sketcher.Constraint("Coincident", 1, 2, 2, 1))
sketch2.addConstraint(Sketcher.Constraint("Coincident", 2, 2, 3, 1))
sketch2.addConstraint(Sketcher.Constraint("Coincident", 3, 2, 0, 1))
sketch2.addConstraint(Sketcher.Constraint("Coincident", 4, 2, 5, 1))
sketch2.addConstraint(Sketcher.Constraint("Coincident", 5, 2, 6, 1))
sketch2.addConstraint(Sketcher.Constraint("Coincident", 6, 2, 4, 1))
sketch2.addConstraint(Sketcher.Constraint("Horizontal", 2))
sketch2.addConstraint(Sketcher.Constraint("Horizontal", 6))
sketch2.addConstraint(Sketcher.Constraint("PointOnObject", 4, 2, -1))
sketch2.addConstraint(Sketcher.Constraint("Parallel", 0, 5))
sketch2.addConstraint(Sketcher.Constraint("Angle", 0, Q("-135 deg")))
sketch2.addConstraint(Sketcher.Constraint("Distance", 4, Q("160 mm")))
sketch2.addConstraint(Sketcher.Constraint("DistanceX", 2, 1, 2, 2, Q("141.080331 mm")))
sketch2.addConstraint(Sketcher.Constraint("DistanceX", 6, 2, 6, 1, Q("161.78992 mm")))
sketch2.addConstraint(Sketcher.Constraint("DistanceX", 0, 2, -1, 1, Q("72.7507 mm")))
sketch2.addConstraint(Sketcher.Constraint("Distance", 0, Q("242.386281 mm")))
sketch2.addConstraint(Sketcher.Constraint("Distance", 3, Q("328.29786 mm")))
sketch2.addConstraint(Sketcher.Constraint("DistanceY", 1, 2, -1, 1, Q("174.67025 mm")))
sketch2.addConstraint(Sketcher.Constraint("DistanceX", 4, 2, -1, 1, Q("68.418659 mm")))
sketch2.addConstraint(Sketcher.Constraint("DistanceX", 2, 2, 3, 2, Q("21.561429 mm")))
pocket1 = body.newObject("PartDesign::Pocket", "Pocket")
pocket1.Profile = sketch2
pocket1.Type = "ThroughAll"
pocket1.Midplane = True

# Sketch on XY plane
sketch3 = body.newObject("Sketcher::SketchObject", "Sketch002")
sketch3.AttachmentSupport = (doc.getObject("XY_Plane"), [""])
sketch3.MapMode = "FlatFace"
sketch3.addGeometry(Part.Circle(App.Vector(0, 0, 0), App.Vector(0, 0, 1), 4), False)
sketch3.addConstraint(Sketcher.Constraint("Coincident", 0, 3, -1, 1))
sketch3.addConstraint(Sketcher.Constraint("Diameter", 0, Q("8 mm")))
pocket2 = body.newObject("PartDesign::Pocket", "Pocket001")
pocket2.Profile = sketch3
pocket2.Length = 100
pocket2.Reversed = True

doc.recompute()
